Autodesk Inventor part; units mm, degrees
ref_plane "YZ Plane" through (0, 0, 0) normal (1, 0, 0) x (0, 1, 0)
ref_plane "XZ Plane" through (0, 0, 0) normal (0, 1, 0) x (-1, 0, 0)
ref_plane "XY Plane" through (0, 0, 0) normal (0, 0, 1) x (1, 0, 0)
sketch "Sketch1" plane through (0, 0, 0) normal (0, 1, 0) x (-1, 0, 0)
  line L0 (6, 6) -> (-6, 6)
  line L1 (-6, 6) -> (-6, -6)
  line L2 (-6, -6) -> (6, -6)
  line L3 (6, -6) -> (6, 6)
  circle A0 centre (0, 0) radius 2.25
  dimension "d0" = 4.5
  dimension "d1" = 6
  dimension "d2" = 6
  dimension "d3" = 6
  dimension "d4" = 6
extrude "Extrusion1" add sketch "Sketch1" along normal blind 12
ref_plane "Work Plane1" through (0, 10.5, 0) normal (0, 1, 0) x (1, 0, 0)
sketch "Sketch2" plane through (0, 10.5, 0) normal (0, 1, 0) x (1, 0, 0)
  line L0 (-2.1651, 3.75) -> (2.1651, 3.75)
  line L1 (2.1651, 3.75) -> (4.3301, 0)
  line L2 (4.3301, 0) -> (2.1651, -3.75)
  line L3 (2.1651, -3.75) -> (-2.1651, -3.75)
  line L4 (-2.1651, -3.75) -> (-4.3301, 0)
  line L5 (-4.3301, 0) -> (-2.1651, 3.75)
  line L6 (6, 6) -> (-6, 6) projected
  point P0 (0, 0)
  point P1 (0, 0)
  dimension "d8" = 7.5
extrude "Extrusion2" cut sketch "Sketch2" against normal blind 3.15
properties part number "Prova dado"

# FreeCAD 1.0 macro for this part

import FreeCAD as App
import Part
import Sketcher
from FreeCAD import Vector
Q = App.Units.Quantity

doc = App.newDocument("Part")
body = doc.addObject("PartDesign::Body", "Body")

sketch1 = body.newObject("Sketcher::SketchObject", "Sketch")
sketch1.AttachmentSupport = (doc.getObject("XZ_Plane"), [""])
sketch1.MapMode = "FlatFace"
sketch1.addGeometry([
    Part.LineSegment(Vector(-6, -6, 0), Vector(-6, 6, 0)),
    Part.LineSegment(Vector(-6, 6, 0), Vector(6, 6, 0)),
    Part.LineSegment(Vector(6, 6, 0), Vector(6, -6, 0)),
    Part.LineSegment(Vector(6, -6, 0), Vector(-6, -6, 0)),
    Part.Circle(Vector(0, 0, 0), Vector(0, 0, 1), 2.2),
], False)
sketch1.addConstraint([
    Sketcher.Constraint("Coincident", 0, 2, 1, 1),
    Sketcher.Constraint("Coincident", 1, 2, 2, 1),
    Sketcher.Constraint("Coincident", 2, 2, 3, 1),
    Sketcher.Constraint("Coincident", 3, 2, 0, 1),
    Sketcher.Constraint("Vertical", 0),
    Sketcher.Constraint("Horizontal", 1),
    Sketcher.Constraint("Vertical", 2),
    Sketcher.Constraint("Horizontal", 3),
    Sketcher.Constraint("Coincident", 4, 3, -1, 1),
    Sketcher.Constraint("Symmetric", 0, 2, 2, 2, -1, 1),
    Sketcher.Constraint("Equal", 3, 0),
    Sketcher.Constraint("Diameter", 4, Q("4.5 mm")),
    Sketcher.Constraint("DistanceX", 0, 2, -1, 1, Q("6 mm")),
])
pad1 = body.newObject("PartDesign::Pad", "Pad")
pad1.Profile = sketch1
pad1.Length = 12
pad1.Reversed = True

sketch2 = body.newObject("Sketcher::SketchObject", "Sketch001")
sketch2.AttachmentSupport = (doc.getObject("XZ_Plane"), [""])
sketch2.MapMode = "FlatFace"
sketch2.AttachmentOffset = App.Placement(Vector(0, 0, -10.5), App.Rotation())
sketch2.addGeometry([
    Part.LineSegment(Vector(2.2, -3.8, 0), Vector(-2.2, -3.8, 0)),
    Part.LineSegment(Vector(-2.2, -3.8, 0), Vector(-4.3, 0, 0)),
    Part.LineSegment(Vector(-4.3, 0, 0), Vector(-2.2, 3.8, 0)),
    Part.LineSegment(Vector(-2.2, 3.8, 0), Vector(2.2, 3.8, 0)),
    Part.LineSegment(Vector(2.2, 3.8, 0), Vector(4.3, 0, 0)),
    Part.LineSegment(Vector(4.3, 0, 0), Vector(2.2, -3.8, 0)),
], False)
sketch2.addConstraint([
    Sketcher.Constraint("Coincident", 0, 2, 1, 1),
    Sketcher.Constraint("Coincident", 1, 2, 2, 1),
    Sketcher.Constraint("Coincident", 2, 2, 3, 1),
    Sketcher.Constraint("Coincident", 3, 2, 4, 1),
    Sketcher.Constraint("Coincident", 4, 2, 5, 1),
    Sketcher.Constraint("Coincident", 5, 2, 0, 1),
    Sketcher.Constraint("Horizontal", 0),
    Sketcher.Constraint("Horizontal", 3),
    Sketcher.Constraint("Symmetric", 0, 2, 3, 2, -1, 1),
    Sketcher.Constraint("Symmetric", 1, 2, 4, 2, -1, 1),
    Sketcher.Constraint("PointOnObject", 1, 2, -1),
    Sketcher.Constraint("Parallel", 2, 5),
    Sketcher.Constraint("Vertical", 0, 2, 2, 2),
    Sketcher.Constraint("DistanceY", 0, 2, 2, 2, Q("7.5 mm")),
    Sketcher.Constraint("Angle", 1, Q("119.9993 deg")),
    Sketcher.Constraint("DistanceX", 1, 2, -1, 1, Q("4.33 mm")),
])
pocket1 = body.newObject("PartDesign::Pocket", "Pocket")
pocket1.Profile = sketch2
pocket1.Length = 3.15
pocket1.Reversed = True

doc.recompute()
